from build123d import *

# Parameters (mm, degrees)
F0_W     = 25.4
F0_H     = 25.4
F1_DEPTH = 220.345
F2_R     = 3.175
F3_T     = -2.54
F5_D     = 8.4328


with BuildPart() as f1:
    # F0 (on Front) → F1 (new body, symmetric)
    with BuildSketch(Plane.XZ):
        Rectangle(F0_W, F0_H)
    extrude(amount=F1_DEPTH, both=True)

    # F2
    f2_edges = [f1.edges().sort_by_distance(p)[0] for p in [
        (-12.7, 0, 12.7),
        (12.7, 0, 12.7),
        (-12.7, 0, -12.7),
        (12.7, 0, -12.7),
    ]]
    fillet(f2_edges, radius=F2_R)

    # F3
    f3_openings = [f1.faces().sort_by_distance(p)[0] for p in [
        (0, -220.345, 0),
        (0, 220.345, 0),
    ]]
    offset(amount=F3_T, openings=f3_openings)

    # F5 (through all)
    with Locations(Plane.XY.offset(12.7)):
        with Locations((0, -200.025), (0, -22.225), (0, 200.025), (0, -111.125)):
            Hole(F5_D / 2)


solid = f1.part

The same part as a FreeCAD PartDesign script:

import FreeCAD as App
import Part
import Sketcher

V = App.Vector
Q = App.Units.Quantity


def edges_at(feature, points):
    """Names of the edges that pass closest to the given points."""
    edges = feature.Shape.Edges
    near = lambda p: min(range(len(edges)), key=lambda i: edges[i].distToShape(Part.Vertex(*p))[0])
    return sorted({f"Edge{near(p) + 1}" for p in points})


def faces_at(feature, points):
    """Names of the faces that lie closest to the given points."""
    faces = feature.Shape.Faces
    near = lambda p: min(range(len(faces)), key=lambda i: faces[i].distToShape(Part.Vertex(*p))[0])
    return sorted({f"Face{near(p) + 1}" for p in points})


def add_polygon(sketch, points):
    """Adds a closed chain of lines whose ends are joined by coincident constraints."""
    first, n = sketch.GeometryCount, len(points)
    for a, b in zip(points, points[1:] + points[:1]):
        sketch.addGeometry(Part.LineSegment(App.Vector(*a, 0), App.Vector(*b, 0)), False)
    for i in range(n):
        sketch.addConstraint(Sketcher.Constraint("Coincident", first + i, 2, first + (i + 1) % n, 1))

doc = App.newDocument("Part")
params = doc.addObject("Spreadsheet::Sheet", "Params")
for row, (alias, value) in enumerate([
    ("sketch1_width", "1 in"),
    ("pad1_length", "17.35 in"),
    ("fillet_radius", "0.125 in"),
    ("thickness_wall", "0.1 in"),
    ("sketch2_diameter", "0.332 in"),
    ("hole_diameter", "0.332 in"),
], start=1):
    params.set(f"A{row}", alias)
    params.set(f"B{row}", "=" + value)
    params.setAlias(f"B{row}", alias)

body = doc.addObject("PartDesign::Body", "Body")

# Sketch on XZ plane
sketch1 = doc.addObject("Sketcher::SketchObject", "Sketch")
body.addObject(sketch1)
sketch1.AttachmentSupport = (doc.XZ_Plane, [""])
sketch1.MapMode = "FlatFace"
add_polygon(sketch1, [(-12.7, 12.7), (-12.7, -12.7), (12.7, -12.7), (12.7, 12.7)])  # lines 0-3
sketch1.addConstraint([
    Sketcher.Constraint("Vertical", 0),
    Sketcher.Constraint("Horizontal", 1),
    Sketcher.Constraint("Vertical", 2),
    Sketcher.Constraint("Horizontal", 3),
    Sketcher.Constraint("Symmetric", 0, 2, 2, 2, -1, 1),
    Sketcher.Constraint("Equal", 3, 0),
    Sketcher.Constraint("DistanceX", 1, 1, 1, 2, Q("1 in")),
])
sketch1.setExpression("Constraints[10]", "Params.sketch1_width")
pad1 = doc.addObject("PartDesign::Pad", "Pad")
body.addObject(pad1)
pad1.Profile = sketch1
pad1.setExpression("Length", "Params.pad1_length")
pad1.Midplane = True
doc.recompute()

fillet = doc.addObject("PartDesign::Fillet", "Fillet")
body.addObject(fillet)
fillet.Base = (pad1, edges_at(pad1, [
    (-12.7, 0, 12.7),
    (12.7, 0, 12.7),
    (-12.7, 0, -12.7),
    (12.7, 0, -12.7),
]))
fillet.setExpression("Radius", "Params.fillet_radius")
doc.recompute()

thickness = doc.addObject("PartDesign::Thickness", "Thickness")
body.addObject(thickness)
thickness.Base = (fillet, faces_at(fillet, [(0, -220.345, 0), (0, 220.345, 0)]))
thickness.setExpression("Value", "Params.thickness_wall")
thickness.Reversed = True
thickness.Join = "Arc"

# Sketch on XY plane
sketch2 = doc.addObject("Sketcher::SketchObject", "Sketch001")
body.addObject(sketch2)
sketch2.AttachmentSupport = (doc.XY_Plane, [""])
sketch2.MapMode = "FlatFace"
sketch2.AttachmentOffset = App.Placement(V(0, 0, 0.5 * 25.4), App.Rotation())
sketch2.addGeometry([
    Part.Circle(V(0, -200.025, 0), V(0, 0, 1), 4.2164),
    Part.Circle(V(0, -22.225, 0), V(0, 0, 1), 4.2164),
    Part.Circle(V(0, 200.025, 0), V(0, 0, 1), 4.2164),
    Part.Circle(V(0, -111.125, 0), V(0, 0, 1), 4.2164),
], False)
sketch2.addConstraint([
    Sketcher.Constraint("Equal", 0, 1),
    Sketcher.Constraint("Equal", 1, 2),
    Sketcher.Constraint("Equal", 2, 3),
    Sketcher.Constraint("Symmetric", 0, 3, 2, 3, -1, 1),
    Sketcher.Constraint("PointOnObject", 0, 3, -2),
    Sketcher.Constraint("PointOnObject", 1, 3, -2),
    Sketcher.Constraint("PointOnObject", 3, 3, -2),
    Sketcher.Constraint("Diameter", 0, Q("0.332 in")),
    Sketcher.Constraint("DistanceY", 0, 3, 1, 3, Q("7 in")),
    Sketcher.Constraint("DistanceY", 0, 3, 3, 3, Q("3.5 in")),
    Sketcher.Constraint("DistanceY", 1, 3, 2, 3, Q("8.75 in")),
])
sketch2.setExpression("Constraints[7]", "Params.sketch2_diameter")
doc.recompute()
hole = doc.addObject("PartDesign::Hole", "Hole")
body.addObject(hole)
hole.Profile = sketch2
hole.ThreadType = "None"
hole.setExpression("Diameter", "Params.hole_diameter")
hole.DepthType = "ThroughAll"

doc.recompute()
